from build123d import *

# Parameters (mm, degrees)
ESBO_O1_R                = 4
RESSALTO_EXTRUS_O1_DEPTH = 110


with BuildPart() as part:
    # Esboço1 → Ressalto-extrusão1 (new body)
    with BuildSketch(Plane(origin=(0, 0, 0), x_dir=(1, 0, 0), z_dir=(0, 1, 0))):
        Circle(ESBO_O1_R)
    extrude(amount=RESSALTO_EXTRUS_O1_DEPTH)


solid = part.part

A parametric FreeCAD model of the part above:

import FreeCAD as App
import Part
import Sketcher
from FreeCAD import Vector

doc = App.newDocument("Part")
body = doc.addObject("PartDesign::Body", "Body")

sketch1 = body.newObject("Sketcher::SketchObject", "Sketch")
sketch1.AttachmentSupport = (doc.getObject("XZ_Plane"), [""])
sketch1.MapMode = "FlatFace"
sketch1.addGeometry(Part.Circle(Vector(0, 0, 0), Vector(0, 0, 1), 4), False)
sketch1.addConstraint([
    Sketcher.Constraint("Coincident", 0, 3, -1, 1),
    Sketcher.Constraint("Diameter", 0, 8.0),
])
pad1 = body.newObject("PartDesign::Pad", "Pad")
pad1.Profile = sketch1
pad1.Length = 110
pad1.Reversed = True

doc.recompute()
